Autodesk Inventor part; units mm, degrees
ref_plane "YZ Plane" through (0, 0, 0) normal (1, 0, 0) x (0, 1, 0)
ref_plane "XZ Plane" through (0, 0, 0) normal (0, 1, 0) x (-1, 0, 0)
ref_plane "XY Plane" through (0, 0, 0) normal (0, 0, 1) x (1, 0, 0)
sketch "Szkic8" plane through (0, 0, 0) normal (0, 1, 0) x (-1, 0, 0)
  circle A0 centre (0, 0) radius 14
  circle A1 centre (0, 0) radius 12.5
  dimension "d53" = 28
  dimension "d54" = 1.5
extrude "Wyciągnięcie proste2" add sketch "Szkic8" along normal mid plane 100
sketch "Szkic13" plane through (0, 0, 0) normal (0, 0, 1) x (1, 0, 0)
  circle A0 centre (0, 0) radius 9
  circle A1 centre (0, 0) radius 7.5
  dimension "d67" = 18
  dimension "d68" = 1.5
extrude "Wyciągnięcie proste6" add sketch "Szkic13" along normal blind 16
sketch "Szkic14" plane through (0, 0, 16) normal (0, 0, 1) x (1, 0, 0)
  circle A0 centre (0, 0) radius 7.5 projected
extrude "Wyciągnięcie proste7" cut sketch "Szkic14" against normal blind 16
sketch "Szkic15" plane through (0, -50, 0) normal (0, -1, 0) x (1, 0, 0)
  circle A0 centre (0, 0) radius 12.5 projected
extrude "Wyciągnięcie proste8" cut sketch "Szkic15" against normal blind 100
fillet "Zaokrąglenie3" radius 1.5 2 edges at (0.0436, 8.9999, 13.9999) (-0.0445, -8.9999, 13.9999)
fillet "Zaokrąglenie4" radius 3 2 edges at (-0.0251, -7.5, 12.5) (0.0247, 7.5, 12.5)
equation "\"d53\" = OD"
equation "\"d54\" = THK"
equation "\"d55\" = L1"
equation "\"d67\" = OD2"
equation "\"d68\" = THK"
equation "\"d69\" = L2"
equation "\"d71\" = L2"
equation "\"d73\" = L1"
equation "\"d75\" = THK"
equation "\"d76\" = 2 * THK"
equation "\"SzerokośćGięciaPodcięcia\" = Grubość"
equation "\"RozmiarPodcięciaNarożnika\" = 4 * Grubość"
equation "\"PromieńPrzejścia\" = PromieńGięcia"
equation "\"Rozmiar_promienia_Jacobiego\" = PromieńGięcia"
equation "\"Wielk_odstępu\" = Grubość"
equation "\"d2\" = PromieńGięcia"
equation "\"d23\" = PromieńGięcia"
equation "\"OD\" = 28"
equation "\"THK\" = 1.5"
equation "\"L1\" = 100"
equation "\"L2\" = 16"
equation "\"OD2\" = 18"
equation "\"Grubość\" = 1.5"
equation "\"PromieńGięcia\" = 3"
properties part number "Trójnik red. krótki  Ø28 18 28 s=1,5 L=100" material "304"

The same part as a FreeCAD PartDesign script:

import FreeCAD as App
import Part
import Sketcher

V = App.Vector


def edges_at(feature, points):
    """Names of the edges that pass closest to the given points."""
    edges = feature.Shape.Edges
    near = lambda p: min(range(len(edges)), key=lambda i: edges[i].distToShape(Part.Vertex(*p))[0])
    return sorted({f"Edge{near(p) + 1}" for p in points})

doc = App.newDocument("Part")
body = doc.addObject("PartDesign::Body", "Body")

sketch1 = body.newObject("Sketcher::SketchObject", "Sketch")
sketch1.AttachmentSupport = (doc.getObject("XZ_Plane"), [""])
sketch1.MapMode = "FlatFace"
sketch1.addGeometry(Part.Circle(V(0, 0, 0), V(0, 0, 1), 14), False)
sketch1.addGeometry(Part.Circle(V(0, 0, 0), V(0, 0, 1), 12), False)
sketch1.addConstraint(Sketcher.Constraint("Coincident", 0, 3, -1, 1))
sketch1.addConstraint(Sketcher.Constraint("Coincident", 1, 3, -1, 1))
sketch1.addConstraint(Sketcher.Constraint("Diameter", 0, 28.0))
sketch1.addConstraint(Sketcher.Constraint("Diameter", 1, 25.0))
pad1 = body.newObject("PartDesign::Pad", "Pad")
pad1.Profile = sketch1
pad1.Length = 100
pad1.Midplane = True

sketch2 = body.newObject("Sketcher::SketchObject", "Sketch001")
sketch2.AttachmentSupport = (doc.getObject("XY_Plane"), [""])
sketch2.MapMode = "FlatFace"
sketch2.addGeometry(Part.Circle(V(0, 0, 0), V(0, 0, 1), 9), False)
sketch2.addGeometry(Part.Circle(V(0, 0, 0), V(0, 0, 1), 8), False)
sketch2.addConstraint(Sketcher.Constraint("Coincident", 0, 3, -1, 1))
sketch2.addConstraint(Sketcher.Constraint("Coincident", 1, 3, -1, 1))
sketch2.addConstraint(Sketcher.Constraint("Diameter", 0, 18.0))
sketch2.addConstraint(Sketcher.Constraint("Diameter", 1, 15.0))
pad2 = body.newObject("PartDesign::Pad", "Pad001")
pad2.Profile = sketch2
pad2.Length = 16

sketch3 = body.newObject("Sketcher::SketchObject", "Sketch002")
sketch3.AttachmentSupport = (doc.getObject("XY_Plane"), [""])
sketch3.MapMode = "FlatFace"
sketch3.AttachmentOffset = App.Placement(V(0, 0, 16), App.Rotation())
sketch3.addGeometry(Part.Circle(V(0, 0, 0), V(0, 0, 1), 8), False)
sketch3.addConstraint(Sketcher.Constraint("Coincident", 0, 3, -1, 1))
sketch3.addConstraint(Sketcher.Constraint("Diameter", 0, 15.0))
pocket1 = body.newObject("PartDesign::Pocket", "Pocket")
pocket1.Profile = sketch3
pocket1.Length = 16

sketch4 = body.newObject("Sketcher::SketchObject", "Sketch003")
sketch4.AttachmentSupport = (doc.getObject("XZ_Plane"), [""])
sketch4.MapMode = "FlatFace"
sketch4.AttachmentOffset = App.Placement(V(0, 0, 50), App.Rotation())
sketch4.addGeometry(Part.Circle(V(0, 0, 0), V(0, 0, 1), 12), False)
sketch4.addConstraint(Sketcher.Constraint("Coincident", 0, 3, -1, 1))
sketch4.addConstraint(Sketcher.Constraint("Diameter", 0, 25.0))
pocket2 = body.newObject("PartDesign::Pocket", "Pocket001")
pocket2.Profile = sketch4
pocket2.Length = 100
doc.recompute()

fillet = body.newObject("PartDesign::Fillet", "Fillet")
fillet.Base = (pocket2, edges_at(pocket2, [(0.044, 9, 14), (-0.044, -9, 14)]))
fillet.Radius = 1.5
doc.recompute()

fillet2 = body.newObject("PartDesign::Fillet", "Fillet001")
fillet2.Base = (fillet, edges_at(fillet, [(-0.025, -7.5, 12.5), (0.025, 7.5, 12.5)]))
fillet2.Radius = 3

doc.recompute()
